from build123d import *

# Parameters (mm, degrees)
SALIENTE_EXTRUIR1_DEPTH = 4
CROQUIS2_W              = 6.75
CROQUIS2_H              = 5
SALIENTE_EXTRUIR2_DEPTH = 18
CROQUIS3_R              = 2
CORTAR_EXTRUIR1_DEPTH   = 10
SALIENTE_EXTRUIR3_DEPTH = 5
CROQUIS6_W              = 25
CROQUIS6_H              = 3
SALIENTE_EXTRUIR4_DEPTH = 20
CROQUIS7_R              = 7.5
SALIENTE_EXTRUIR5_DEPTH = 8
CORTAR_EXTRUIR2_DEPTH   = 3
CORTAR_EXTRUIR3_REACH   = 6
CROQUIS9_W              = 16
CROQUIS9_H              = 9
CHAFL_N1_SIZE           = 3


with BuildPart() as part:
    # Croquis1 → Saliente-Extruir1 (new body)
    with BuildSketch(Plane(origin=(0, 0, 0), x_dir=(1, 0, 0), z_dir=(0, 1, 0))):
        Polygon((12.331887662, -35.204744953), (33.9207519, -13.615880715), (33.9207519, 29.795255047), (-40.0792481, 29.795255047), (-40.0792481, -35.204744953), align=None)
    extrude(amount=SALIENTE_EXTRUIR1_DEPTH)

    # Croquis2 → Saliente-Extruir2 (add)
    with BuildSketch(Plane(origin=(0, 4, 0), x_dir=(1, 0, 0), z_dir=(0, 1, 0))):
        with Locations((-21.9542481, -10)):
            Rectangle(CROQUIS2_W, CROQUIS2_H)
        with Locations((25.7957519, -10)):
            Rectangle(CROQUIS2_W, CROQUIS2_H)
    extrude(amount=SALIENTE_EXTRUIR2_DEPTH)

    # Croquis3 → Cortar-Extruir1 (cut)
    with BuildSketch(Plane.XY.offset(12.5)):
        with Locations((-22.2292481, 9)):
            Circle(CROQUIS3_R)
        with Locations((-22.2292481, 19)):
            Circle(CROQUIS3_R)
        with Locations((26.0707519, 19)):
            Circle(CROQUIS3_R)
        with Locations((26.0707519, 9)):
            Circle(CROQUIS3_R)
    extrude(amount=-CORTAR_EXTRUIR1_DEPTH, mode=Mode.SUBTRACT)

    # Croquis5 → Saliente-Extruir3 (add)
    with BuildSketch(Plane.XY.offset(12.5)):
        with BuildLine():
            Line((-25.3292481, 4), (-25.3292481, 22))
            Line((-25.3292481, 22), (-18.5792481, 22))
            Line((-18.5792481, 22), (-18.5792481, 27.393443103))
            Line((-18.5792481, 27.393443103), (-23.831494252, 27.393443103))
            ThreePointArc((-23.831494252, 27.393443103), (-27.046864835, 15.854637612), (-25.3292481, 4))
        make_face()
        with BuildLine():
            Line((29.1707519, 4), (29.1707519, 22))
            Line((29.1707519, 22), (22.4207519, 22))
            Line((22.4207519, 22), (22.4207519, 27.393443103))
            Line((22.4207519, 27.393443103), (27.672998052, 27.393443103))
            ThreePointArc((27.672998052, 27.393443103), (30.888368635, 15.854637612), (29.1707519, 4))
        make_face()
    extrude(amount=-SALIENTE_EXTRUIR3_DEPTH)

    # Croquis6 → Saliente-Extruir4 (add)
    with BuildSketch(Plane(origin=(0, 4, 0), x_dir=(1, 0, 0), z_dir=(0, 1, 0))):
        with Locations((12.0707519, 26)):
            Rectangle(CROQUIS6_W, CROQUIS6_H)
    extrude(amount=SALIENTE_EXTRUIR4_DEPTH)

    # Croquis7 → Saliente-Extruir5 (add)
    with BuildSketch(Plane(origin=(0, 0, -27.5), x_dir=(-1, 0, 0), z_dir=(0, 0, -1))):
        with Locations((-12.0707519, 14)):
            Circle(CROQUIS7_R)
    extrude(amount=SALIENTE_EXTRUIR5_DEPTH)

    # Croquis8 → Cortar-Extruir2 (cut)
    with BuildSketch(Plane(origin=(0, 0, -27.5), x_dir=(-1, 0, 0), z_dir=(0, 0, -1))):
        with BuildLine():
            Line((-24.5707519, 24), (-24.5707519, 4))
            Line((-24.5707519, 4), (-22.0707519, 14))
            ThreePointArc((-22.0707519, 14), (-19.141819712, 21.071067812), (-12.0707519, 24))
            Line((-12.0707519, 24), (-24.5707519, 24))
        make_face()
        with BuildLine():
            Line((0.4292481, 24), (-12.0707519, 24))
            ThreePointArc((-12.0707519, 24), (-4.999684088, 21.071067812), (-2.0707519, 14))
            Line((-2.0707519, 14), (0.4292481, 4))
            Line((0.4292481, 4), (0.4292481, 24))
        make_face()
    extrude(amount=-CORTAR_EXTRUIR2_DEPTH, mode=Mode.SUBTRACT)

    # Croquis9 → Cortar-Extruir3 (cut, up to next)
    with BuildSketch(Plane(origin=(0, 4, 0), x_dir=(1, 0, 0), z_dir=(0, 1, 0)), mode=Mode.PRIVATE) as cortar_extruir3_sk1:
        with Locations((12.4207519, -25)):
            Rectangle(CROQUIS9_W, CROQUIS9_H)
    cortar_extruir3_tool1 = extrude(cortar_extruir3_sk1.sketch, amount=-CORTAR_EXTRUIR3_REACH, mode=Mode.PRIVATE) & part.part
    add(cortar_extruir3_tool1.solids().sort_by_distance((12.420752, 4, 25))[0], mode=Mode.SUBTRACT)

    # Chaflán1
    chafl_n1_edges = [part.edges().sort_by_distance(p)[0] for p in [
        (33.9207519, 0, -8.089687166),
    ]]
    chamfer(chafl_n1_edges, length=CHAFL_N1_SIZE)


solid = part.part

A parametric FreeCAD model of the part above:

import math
import FreeCAD as App
import Part
import Sketcher

V = App.Vector
Q = App.Units.Quantity


def edges_at(feature, points):
    """Names of the edges that pass closest to the given points."""
    edges = feature.Shape.Edges
    near = lambda p: min(range(len(edges)), key=lambda i: edges[i].distToShape(Part.Vertex(*p))[0])
    return sorted({f"Edge{near(p) + 1}" for p in points})

doc = App.newDocument("Part")
body = doc.addObject("PartDesign::Body", "Body")

sketch1 = body.newObject("Sketcher::SketchObject", "Sketch")
sketch1.AttachmentSupport = (doc.getObject("XZ_Plane"), [""])
sketch1.MapMode = "FlatFace"
sketch1.addGeometry([
    Part.LineSegment(V(12, 35, 0), V(34, 14, 0)),
    Part.LineSegment(V(34, 14, 0), V(34, -30, 0)),
    Part.LineSegment(V(34, -30, 0), V(-40, -30, 0)),
    Part.LineSegment(V(-40, -30, 0), V(-40, 35, 0)),
    Part.LineSegment(V(-40, 35, 0), V(12, 35, 0)),
], False)
sketch1.addConstraint([
    Sketcher.Constraint("Coincident", 0, 2, 1, 1),
    Sketcher.Constraint("Coincident", 1, 2, 2, 1),
    Sketcher.Constraint("Coincident", 2, 2, 3, 1),
    Sketcher.Constraint("Coincident", 3, 2, 4, 1),
    Sketcher.Constraint("Coincident", 4, 2, 0, 1),
    Sketcher.Constraint("Vertical", 1),
    Sketcher.Constraint("Horizontal", 2),
    Sketcher.Constraint("Vertical", 3),
    Sketcher.Constraint("Horizontal", 4),
    Sketcher.Constraint("DistanceX", 2, 2, 2, 1, Q("74 mm")),
    Sketcher.Constraint("DistanceY", 3, 1, 3, 2, Q("65 mm")),
    Sketcher.Constraint("Angle", 0, Q("-45 deg")),
    Sketcher.Constraint("DistanceX", 4, 1, 4, 2, Q("52.411136 mm")),
    Sketcher.Constraint("DistanceX", -1, 1, 0, 2, Q("33.920752 mm")),
    Sketcher.Constraint("DistanceY", -1, 1, 0, 2, Q("13.615881 mm")),
])
pad1 = body.newObject("PartDesign::Pad", "Pad")
pad1.Profile = sketch1
pad1.Length = 4
pad1.Reversed = True

sketch2 = body.newObject("Sketcher::SketchObject", "Sketch001")
sketch2.AttachmentSupport = (doc.getObject("XZ_Plane"), [""])
sketch2.MapMode = "FlatFace"
sketch2.AttachmentOffset = App.Placement(V(0, 0, -4), App.Rotation())
sketch2.addGeometry([
    Part.LineSegment(V(-25, 8, 0), V(-25, 12, 0)),
    Part.LineSegment(V(-25, 12, 0), V(-19, 12, 0)),
    Part.LineSegment(V(-19, 12, 0), V(-19, 8, 0)),
    Part.LineSegment(V(-19, 8, 0), V(-25, 8, 0)),
    Part.LineSegment(V(22, 8, 0), V(22, 12, 0)),
    Part.LineSegment(V(22, 12, 0), V(29, 12, 0)),
    Part.LineSegment(V(29, 12, 0), V(29, 8, 0)),
    Part.LineSegment(V(29, 8, 0), V(22, 8, 0)),
], False)
sketch2.addConstraint([
    Sketcher.Constraint("Coincident", 0, 2, 1, 1),
    Sketcher.Constraint("Coincident", 1, 2, 2, 1),
    Sketcher.Constraint("Coincident", 2, 2, 3, 1),
    Sketcher.Constraint("Coincident", 3, 2, 0, 1),
    Sketcher.Constraint("Coincident", 4, 2, 5, 1),
    Sketcher.Constraint("Coincident", 5, 2, 6, 1),
    Sketcher.Constraint("Coincident", 6, 2, 7, 1),
    Sketcher.Constraint("Coincident", 7, 2, 4, 1),
    Sketcher.Constraint("Vertical", 0),
    Sketcher.Constraint("Horizontal", 1),
    Sketcher.Constraint("Vertical", 2),
    Sketcher.Constraint("Horizontal", 3),
    Sketcher.Constraint("Vertical", 4),
    Sketcher.Constraint("Horizontal", 5),
    Sketcher.Constraint("Vertical", 6),
    Sketcher.Constraint("Horizontal", 7),
    Sketcher.Constraint("Horizontal", 1, 2, 4, 2),
    Sketcher.Constraint("Horizontal", 3, 2, 6, 2),
    Sketcher.Constraint("Equal", 3, 5),
    Sketcher.Constraint("DistanceY", 0, 1, 0, 2, Q("5 mm")),
    Sketcher.Constraint("DistanceX", 1, 2, 4, 2, Q("41 mm")),
    Sketcher.Constraint("DistanceX", 1, 1, 1, 2, Q("6.75 mm")),
    Sketcher.Constraint("DistanceY", -1, 1, 0, 2, Q("12.5 mm")),
    Sketcher.Constraint("DistanceX", 0, 2, -1, 1, Q("25.329248 mm")),
])
pad2 = body.newObject("PartDesign::Pad", "Pad001")
pad2.Profile = sketch2
pad2.Length = 18
pad2.Reversed = True

sketch3 = body.newObject("Sketcher::SketchObject", "Sketch002")
sketch3.AttachmentSupport = (doc.getObject("XY_Plane"), [""])
sketch3.MapMode = "FlatFace"
sketch3.AttachmentOffset = App.Placement(V(0, 0, 12.5), App.Rotation())
sketch3.addGeometry([
    Part.Circle(V(-22.2, 9, 0), V(0, 0, 1), 2),
    Part.Circle(V(-22.2, 19, 0), V(0, 0, 1), 2),
    Part.Circle(V(26.1, 19, 0), V(0, 0, 1), 2),
    Part.Circle(V(26.1, 9, 0), V(0, 0, 1), 2),
], False)
sketch3.addConstraint([
    Sketcher.Constraint("Equal", 0, 1),
    Sketcher.Constraint("Equal", 1, 2),
    Sketcher.Constraint("Equal", 2, 3),
    Sketcher.Constraint("Horizontal", 1, 3, 2, 3),
    Sketcher.Constraint("Horizontal", 0, 3, 3, 3),
    Sketcher.Constraint("Vertical", 0, 3, 1, 3),
    Sketcher.Constraint("Vertical", 2, 3, 3, 3),
    Sketcher.Constraint("Diameter", 0, Q("4 mm")),
    Sketcher.Constraint("DistanceY", -1, 1, 0, 3, Q("9 mm")),
    Sketcher.Constraint("DistanceY", -1, 1, 1, 3, Q("19 mm")),
    Sketcher.Constraint("DistanceX", 1, 3, 2, 3, Q("48.3 mm")),
    Sketcher.Constraint("DistanceX", 0, 3, -1, 1, Q("22.229248 mm")),
])
pocket1 = body.newObject("PartDesign::Pocket", "Pocket")
pocket1.Profile = sketch3
pocket1.Length = 10

sketch4 = body.newObject("Sketcher::SketchObject", "Sketch003")
sketch4.AttachmentSupport = (doc.getObject("XY_Plane"), [""])
sketch4.MapMode = "FlatFace"
sketch4.AttachmentOffset = App.Placement(V(0, 0, 12.5), App.Rotation())
sketch4.addGeometry([
    Part.LineSegment(V(-25, 4, 0), V(-25, 22, 0)),
    Part.LineSegment(V(-25, 22, 0), V(-19, 22, 0)),
    Part.LineSegment(V(-19, 22, 0), V(-19, 27, 0)),
    Part.LineSegment(V(-19, 27, 0), V(-24, 27, 0)),
    Part.ArcOfCircle(Part.Circle(V(2, 14, 0), V(0, 0, 1), 29), math.radians(153), math.radians(200)),
    Part.LineSegment(V(29, 22, 0), V(29, 4, 0)),
    Part.ArcOfCircle(Part.Circle(V(2, 14, 0), V(0, 0, 1), 29), math.radians(-20), math.radians(27)),
    Part.LineSegment(V(28, 27, 0), V(22, 27, 0)),
    Part.LineSegment(V(22, 27, 0), V(22, 22, 0)),
    Part.LineSegment(V(22, 22, 0), V(29, 22, 0)),
], False)
sketch4.addConstraint([
    Sketcher.Constraint("Coincident", 0, 2, 1, 1),
    Sketcher.Constraint("Coincident", 1, 2, 2, 1),
    Sketcher.Constraint("Coincident", 2, 2, 3, 1),
    Sketcher.Constraint("Coincident", 3, 2, 4, 1),
    Sketcher.Constraint("Coincident", 4, 2, 0, 1),
    Sketcher.Constraint("Coincident", 5, 2, 6, 1),
    Sketcher.Constraint("Coincident", 6, 2, 7, 1),
    Sketcher.Constraint("Coincident", 7, 2, 8, 1),
    Sketcher.Constraint("Coincident", 8, 2, 9, 1),
    Sketcher.Constraint("Coincident", 9, 2, 5, 1),
    Sketcher.Constraint("Vertical", 0),
    Sketcher.Constraint("Horizontal", 1),
    Sketcher.Constraint("Vertical", 2),
    Sketcher.Constraint("Horizontal", 3),
    Sketcher.Constraint("Vertical", 5),
    Sketcher.Constraint("Horizontal", 7),
    Sketcher.Constraint("Vertical", 8),
    Sketcher.Constraint("Horizontal", 9),
    Sketcher.Constraint("Coincident", 6, 3, 4, 3),
    Sketcher.Constraint("Equal", 4, 6),
    Sketcher.Constraint("Horizontal", 4, 2, 5, 2),
    Sketcher.Constraint("Horizontal", 3, 2, 6, 2),
    Sketcher.Constraint("Horizontal", 1, 2, 8, 2),
    Sketcher.Constraint("Equal", 3, 7),
    Sketcher.Constraint("DistanceY", 0, 1, 0, 2, Q("18 mm")),
    Sketcher.Constraint("DistanceY", -1, 1, 4, 3, Q("14 mm")),
    Sketcher.Constraint("DistanceY", -1, 1, 0, 2, Q("22 mm")),
    Sketcher.Constraint("DistanceX", 2, 2, 7, 2, Q("41 mm")),
    Sketcher.Constraint("DistanceX", 1, 1, 1, 2, Q("6.75 mm")),
    Sketcher.Constraint("DistanceX", -1, 1, 6, 2, Q("27.672998 mm")),
    Sketcher.Constraint("DistanceX", 3, 2, 3, 1, Q("5.252246 mm")),
])
pad3 = body.newObject("PartDesign::Pad", "Pad002")
pad3.Profile = sketch4
pad3.Length = 5
pad3.Reversed = True

sketch5 = body.newObject("Sketcher::SketchObject", "Sketch004")
sketch5.AttachmentSupport = (doc.getObject("XZ_Plane"), [""])
sketch5.MapMode = "FlatFace"
sketch5.AttachmentOffset = App.Placement(V(0, 0, -4), App.Rotation())
sketch5.addGeometry([
    Part.LineSegment(V(-0.4, -27.5, 0), V(-0.4, -24.5, 0)),
    Part.LineSegment(V(-0.4, -24.5, 0), V(24.6, -24.5, 0)),
    Part.LineSegment(V(24.6, -24.5, 0), V(24.6, -27.5, 0)),
    Part.LineSegment(V(24.6, -27.5, 0), V(-0.4, -27.5, 0)),
], False)
sketch5.addConstraint([
    Sketcher.Constraint("Coincident", 0, 2, 1, 1),
    Sketcher.Constraint("Coincident", 1, 2, 2, 1),
    Sketcher.Constraint("Coincident", 2, 2, 3, 1),
    Sketcher.Constraint("Coincident", 3, 2, 0, 1),
    Sketcher.Constraint("Vertical", 0),
    Sketcher.Constraint("Horizontal", 1),
    Sketcher.Constraint("Vertical", 2),
    Sketcher.Constraint("Horizontal", 3),
    Sketcher.Constraint("DistanceX", 1, 1, 1, 2, Q("25 mm")),
    Sketcher.Constraint("DistanceY", 0, 1, 0, 2, Q("3 mm")),
    Sketcher.Constraint("DistanceY", 0, 2, -1, 1, Q("24.5 mm")),
    Sketcher.Constraint("DistanceX", 0, 2, -1, 1, Q("0.429248 mm")),
])
pad4 = body.newObject("PartDesign::Pad", "Pad003")
pad4.Profile = sketch5
pad4.Length = 20
pad4.Reversed = True

sketch6 = body.newObject("Sketcher::SketchObject", "Sketch005")
sketch6.AttachmentSupport = (doc.getObject("XY_Plane"), [""])
sketch6.MapMode = "FlatFace"
sketch6.AttachmentOffset = App.Placement(V(0, 0, -27.5), App.Rotation())
sketch6.addGeometry(Part.Circle(V(12, 14, 0), V(0, 0, 1), 8), False)
sketch6.addConstraint([
    Sketcher.Constraint("Diameter", 0, Q("15 mm")),
    Sketcher.Constraint("DistanceY", -1, 1, 0, 3, Q("14 mm")),
    Sketcher.Constraint("DistanceX", -1, 1, 0, 3, Q("12.070752 mm")),
])
pad5 = body.newObject("PartDesign::Pad", "Pad004")
pad5.Profile = sketch6
pad5.Length = 8
pad5.Reversed = True

sketch7 = body.newObject("Sketcher::SketchObject", "Sketch006")
sketch7.AttachmentSupport = (doc.getObject("XY_Plane"), [""])
sketch7.MapMode = "FlatFace"
sketch7.AttachmentOffset = App.Placement(V(0, 0, -27.5), App.Rotation())
sketch7.addGeometry([
    Part.LineSegment(V(25, 24, 0), V(25, 4, 0)),
    Part.LineSegment(V(25, 4, 0), V(22, 14, 0)),
    Part.ArcOfCircle(Part.Circle(V(12, 14, 0), V(0, 0, 1), 10), math.radians(0), math.radians(90)),
    Part.LineSegment(V(12, 24, 0), V(25, 24, 0)),
    Part.LineSegment(V(0, 24, 0), V(12, 24, 0)),
    Part.ArcOfCircle(Part.Circle(V(12, 14, 0), V(0, 0, 1), 10), math.radians(90), math.radians(180)),
    Part.LineSegment(V(2, 14, 0), V(0, 4, 0)),
    Part.LineSegment(V(0, 4, 0), V(0, 24, 0)),
], False)
sketch7.addConstraint([
    Sketcher.Constraint("Coincident", 0, 2, 1, 1),
    Sketcher.Constraint("Coincident", 1, 2, 2, 1),
    Sketcher.Constraint("Tangent", 2, 2, 3, 1),
    Sketcher.Constraint("Coincident", 3, 2, 0, 1),
    Sketcher.Constraint("Tangent", 4, 2, 5, 1),
    Sketcher.Constraint("Coincident", 5, 2, 6, 1),
    Sketcher.Constraint("Coincident", 6, 2, 7, 1),
    Sketcher.Constraint("Coincident", 7, 2, 4, 1),
    Sketcher.Constraint("Vertical", 0),
    Sketcher.Constraint("Horizontal", 3),
    Sketcher.Constraint("Horizontal", 4),
    Sketcher.Constraint("Vertical", 7),
    Sketcher.Constraint("Coincident", 5, 3, 2, 3),
    Sketcher.Constraint("Equal", 2, 5),
    Sketcher.Constraint("Horizontal", 5, 3, 1, 2),
    Sketcher.Constraint("Horizontal", 1, 2, 5, 2),
    Sketcher.Constraint("Horizontal", 0, 2, 6, 2),
    Sketcher.Constraint("Equal", 3, 4),
    Sketcher.Constraint("Radius", 2, Q("10 mm")),
    Sketcher.Constraint("DistanceY", 0, 2, 0, 1, Q("20 mm")),
    Sketcher.Constraint("DistanceX", 3, 1, 3, 2, Q("12.5 mm")),
    Sketcher.Constraint("DistanceY", -1, 1, 2, 3, Q("14 mm")),
    Sketcher.Constraint("DistanceX", -1, 1, 2, 3, Q("12.070752 mm")),
])
pocket2 = body.newObject("PartDesign::Pocket", "Pocket001")
pocket2.Profile = sketch7
pocket2.Length = 3
pocket2.Reversed = True

sketch8 = body.newObject("Sketcher::SketchObject", "Sketch007")
sketch8.AttachmentSupport = (doc.getObject("XZ_Plane"), [""])
sketch8.MapMode = "FlatFace"
sketch8.AttachmentOffset = App.Placement(V(0, 0, -4), App.Rotation())
sketch8.addGeometry([
    Part.LineSegment(V(4, 20, 0), V(4, 30, 0)),
    Part.LineSegment(V(4, 30, 0), V(20, 30, 0)),
    Part.LineSegment(V(20, 30, 0), V(20, 20, 0)),
    Part.LineSegment(V(20, 20, 0), V(4, 20, 0)),
], False)
sketch8.addConstraint([
    Sketcher.Constraint("Coincident", 0, 2, 1, 1),
    Sketcher.Constraint("Coincident", 1, 2, 2, 1),
    Sketcher.Constraint("Coincident", 2, 2, 3, 1),
    Sketcher.Constraint("Coincident", 3, 2, 0, 1),
    Sketcher.Constraint("Vertical", 0),
    Sketcher.Constraint("Horizontal", 1),
    Sketcher.Constraint("Vertical", 2),
    Sketcher.Constraint("Horizontal", 3),
    Sketcher.Constraint("DistanceX", 1, 1, 1, 2, Q("16 mm")),
    Sketcher.Constraint("DistanceY", 0, 1, 0, 2, Q("9 mm")),
    Sketcher.Constraint("DistanceY", -1, 1, 0, 2, Q("29.5 mm")),
    Sketcher.Constraint("DistanceX", -1, 1, 0, 2, Q("4.420752 mm")),
])
pocket3 = body.newObject("PartDesign::Pocket", "Pocket002")
pocket3.Profile = sketch8
pocket3.Type = "UpToFirst"
pocket3.Reversed = True
doc.recompute()

chamfer = body.newObject("PartDesign::Chamfer", "Chamfer")
chamfer.Base = (pocket3, edges_at(pocket3, [(33.921, 0, -8.09)]))
chamfer.Size = 3

doc.recompute()
